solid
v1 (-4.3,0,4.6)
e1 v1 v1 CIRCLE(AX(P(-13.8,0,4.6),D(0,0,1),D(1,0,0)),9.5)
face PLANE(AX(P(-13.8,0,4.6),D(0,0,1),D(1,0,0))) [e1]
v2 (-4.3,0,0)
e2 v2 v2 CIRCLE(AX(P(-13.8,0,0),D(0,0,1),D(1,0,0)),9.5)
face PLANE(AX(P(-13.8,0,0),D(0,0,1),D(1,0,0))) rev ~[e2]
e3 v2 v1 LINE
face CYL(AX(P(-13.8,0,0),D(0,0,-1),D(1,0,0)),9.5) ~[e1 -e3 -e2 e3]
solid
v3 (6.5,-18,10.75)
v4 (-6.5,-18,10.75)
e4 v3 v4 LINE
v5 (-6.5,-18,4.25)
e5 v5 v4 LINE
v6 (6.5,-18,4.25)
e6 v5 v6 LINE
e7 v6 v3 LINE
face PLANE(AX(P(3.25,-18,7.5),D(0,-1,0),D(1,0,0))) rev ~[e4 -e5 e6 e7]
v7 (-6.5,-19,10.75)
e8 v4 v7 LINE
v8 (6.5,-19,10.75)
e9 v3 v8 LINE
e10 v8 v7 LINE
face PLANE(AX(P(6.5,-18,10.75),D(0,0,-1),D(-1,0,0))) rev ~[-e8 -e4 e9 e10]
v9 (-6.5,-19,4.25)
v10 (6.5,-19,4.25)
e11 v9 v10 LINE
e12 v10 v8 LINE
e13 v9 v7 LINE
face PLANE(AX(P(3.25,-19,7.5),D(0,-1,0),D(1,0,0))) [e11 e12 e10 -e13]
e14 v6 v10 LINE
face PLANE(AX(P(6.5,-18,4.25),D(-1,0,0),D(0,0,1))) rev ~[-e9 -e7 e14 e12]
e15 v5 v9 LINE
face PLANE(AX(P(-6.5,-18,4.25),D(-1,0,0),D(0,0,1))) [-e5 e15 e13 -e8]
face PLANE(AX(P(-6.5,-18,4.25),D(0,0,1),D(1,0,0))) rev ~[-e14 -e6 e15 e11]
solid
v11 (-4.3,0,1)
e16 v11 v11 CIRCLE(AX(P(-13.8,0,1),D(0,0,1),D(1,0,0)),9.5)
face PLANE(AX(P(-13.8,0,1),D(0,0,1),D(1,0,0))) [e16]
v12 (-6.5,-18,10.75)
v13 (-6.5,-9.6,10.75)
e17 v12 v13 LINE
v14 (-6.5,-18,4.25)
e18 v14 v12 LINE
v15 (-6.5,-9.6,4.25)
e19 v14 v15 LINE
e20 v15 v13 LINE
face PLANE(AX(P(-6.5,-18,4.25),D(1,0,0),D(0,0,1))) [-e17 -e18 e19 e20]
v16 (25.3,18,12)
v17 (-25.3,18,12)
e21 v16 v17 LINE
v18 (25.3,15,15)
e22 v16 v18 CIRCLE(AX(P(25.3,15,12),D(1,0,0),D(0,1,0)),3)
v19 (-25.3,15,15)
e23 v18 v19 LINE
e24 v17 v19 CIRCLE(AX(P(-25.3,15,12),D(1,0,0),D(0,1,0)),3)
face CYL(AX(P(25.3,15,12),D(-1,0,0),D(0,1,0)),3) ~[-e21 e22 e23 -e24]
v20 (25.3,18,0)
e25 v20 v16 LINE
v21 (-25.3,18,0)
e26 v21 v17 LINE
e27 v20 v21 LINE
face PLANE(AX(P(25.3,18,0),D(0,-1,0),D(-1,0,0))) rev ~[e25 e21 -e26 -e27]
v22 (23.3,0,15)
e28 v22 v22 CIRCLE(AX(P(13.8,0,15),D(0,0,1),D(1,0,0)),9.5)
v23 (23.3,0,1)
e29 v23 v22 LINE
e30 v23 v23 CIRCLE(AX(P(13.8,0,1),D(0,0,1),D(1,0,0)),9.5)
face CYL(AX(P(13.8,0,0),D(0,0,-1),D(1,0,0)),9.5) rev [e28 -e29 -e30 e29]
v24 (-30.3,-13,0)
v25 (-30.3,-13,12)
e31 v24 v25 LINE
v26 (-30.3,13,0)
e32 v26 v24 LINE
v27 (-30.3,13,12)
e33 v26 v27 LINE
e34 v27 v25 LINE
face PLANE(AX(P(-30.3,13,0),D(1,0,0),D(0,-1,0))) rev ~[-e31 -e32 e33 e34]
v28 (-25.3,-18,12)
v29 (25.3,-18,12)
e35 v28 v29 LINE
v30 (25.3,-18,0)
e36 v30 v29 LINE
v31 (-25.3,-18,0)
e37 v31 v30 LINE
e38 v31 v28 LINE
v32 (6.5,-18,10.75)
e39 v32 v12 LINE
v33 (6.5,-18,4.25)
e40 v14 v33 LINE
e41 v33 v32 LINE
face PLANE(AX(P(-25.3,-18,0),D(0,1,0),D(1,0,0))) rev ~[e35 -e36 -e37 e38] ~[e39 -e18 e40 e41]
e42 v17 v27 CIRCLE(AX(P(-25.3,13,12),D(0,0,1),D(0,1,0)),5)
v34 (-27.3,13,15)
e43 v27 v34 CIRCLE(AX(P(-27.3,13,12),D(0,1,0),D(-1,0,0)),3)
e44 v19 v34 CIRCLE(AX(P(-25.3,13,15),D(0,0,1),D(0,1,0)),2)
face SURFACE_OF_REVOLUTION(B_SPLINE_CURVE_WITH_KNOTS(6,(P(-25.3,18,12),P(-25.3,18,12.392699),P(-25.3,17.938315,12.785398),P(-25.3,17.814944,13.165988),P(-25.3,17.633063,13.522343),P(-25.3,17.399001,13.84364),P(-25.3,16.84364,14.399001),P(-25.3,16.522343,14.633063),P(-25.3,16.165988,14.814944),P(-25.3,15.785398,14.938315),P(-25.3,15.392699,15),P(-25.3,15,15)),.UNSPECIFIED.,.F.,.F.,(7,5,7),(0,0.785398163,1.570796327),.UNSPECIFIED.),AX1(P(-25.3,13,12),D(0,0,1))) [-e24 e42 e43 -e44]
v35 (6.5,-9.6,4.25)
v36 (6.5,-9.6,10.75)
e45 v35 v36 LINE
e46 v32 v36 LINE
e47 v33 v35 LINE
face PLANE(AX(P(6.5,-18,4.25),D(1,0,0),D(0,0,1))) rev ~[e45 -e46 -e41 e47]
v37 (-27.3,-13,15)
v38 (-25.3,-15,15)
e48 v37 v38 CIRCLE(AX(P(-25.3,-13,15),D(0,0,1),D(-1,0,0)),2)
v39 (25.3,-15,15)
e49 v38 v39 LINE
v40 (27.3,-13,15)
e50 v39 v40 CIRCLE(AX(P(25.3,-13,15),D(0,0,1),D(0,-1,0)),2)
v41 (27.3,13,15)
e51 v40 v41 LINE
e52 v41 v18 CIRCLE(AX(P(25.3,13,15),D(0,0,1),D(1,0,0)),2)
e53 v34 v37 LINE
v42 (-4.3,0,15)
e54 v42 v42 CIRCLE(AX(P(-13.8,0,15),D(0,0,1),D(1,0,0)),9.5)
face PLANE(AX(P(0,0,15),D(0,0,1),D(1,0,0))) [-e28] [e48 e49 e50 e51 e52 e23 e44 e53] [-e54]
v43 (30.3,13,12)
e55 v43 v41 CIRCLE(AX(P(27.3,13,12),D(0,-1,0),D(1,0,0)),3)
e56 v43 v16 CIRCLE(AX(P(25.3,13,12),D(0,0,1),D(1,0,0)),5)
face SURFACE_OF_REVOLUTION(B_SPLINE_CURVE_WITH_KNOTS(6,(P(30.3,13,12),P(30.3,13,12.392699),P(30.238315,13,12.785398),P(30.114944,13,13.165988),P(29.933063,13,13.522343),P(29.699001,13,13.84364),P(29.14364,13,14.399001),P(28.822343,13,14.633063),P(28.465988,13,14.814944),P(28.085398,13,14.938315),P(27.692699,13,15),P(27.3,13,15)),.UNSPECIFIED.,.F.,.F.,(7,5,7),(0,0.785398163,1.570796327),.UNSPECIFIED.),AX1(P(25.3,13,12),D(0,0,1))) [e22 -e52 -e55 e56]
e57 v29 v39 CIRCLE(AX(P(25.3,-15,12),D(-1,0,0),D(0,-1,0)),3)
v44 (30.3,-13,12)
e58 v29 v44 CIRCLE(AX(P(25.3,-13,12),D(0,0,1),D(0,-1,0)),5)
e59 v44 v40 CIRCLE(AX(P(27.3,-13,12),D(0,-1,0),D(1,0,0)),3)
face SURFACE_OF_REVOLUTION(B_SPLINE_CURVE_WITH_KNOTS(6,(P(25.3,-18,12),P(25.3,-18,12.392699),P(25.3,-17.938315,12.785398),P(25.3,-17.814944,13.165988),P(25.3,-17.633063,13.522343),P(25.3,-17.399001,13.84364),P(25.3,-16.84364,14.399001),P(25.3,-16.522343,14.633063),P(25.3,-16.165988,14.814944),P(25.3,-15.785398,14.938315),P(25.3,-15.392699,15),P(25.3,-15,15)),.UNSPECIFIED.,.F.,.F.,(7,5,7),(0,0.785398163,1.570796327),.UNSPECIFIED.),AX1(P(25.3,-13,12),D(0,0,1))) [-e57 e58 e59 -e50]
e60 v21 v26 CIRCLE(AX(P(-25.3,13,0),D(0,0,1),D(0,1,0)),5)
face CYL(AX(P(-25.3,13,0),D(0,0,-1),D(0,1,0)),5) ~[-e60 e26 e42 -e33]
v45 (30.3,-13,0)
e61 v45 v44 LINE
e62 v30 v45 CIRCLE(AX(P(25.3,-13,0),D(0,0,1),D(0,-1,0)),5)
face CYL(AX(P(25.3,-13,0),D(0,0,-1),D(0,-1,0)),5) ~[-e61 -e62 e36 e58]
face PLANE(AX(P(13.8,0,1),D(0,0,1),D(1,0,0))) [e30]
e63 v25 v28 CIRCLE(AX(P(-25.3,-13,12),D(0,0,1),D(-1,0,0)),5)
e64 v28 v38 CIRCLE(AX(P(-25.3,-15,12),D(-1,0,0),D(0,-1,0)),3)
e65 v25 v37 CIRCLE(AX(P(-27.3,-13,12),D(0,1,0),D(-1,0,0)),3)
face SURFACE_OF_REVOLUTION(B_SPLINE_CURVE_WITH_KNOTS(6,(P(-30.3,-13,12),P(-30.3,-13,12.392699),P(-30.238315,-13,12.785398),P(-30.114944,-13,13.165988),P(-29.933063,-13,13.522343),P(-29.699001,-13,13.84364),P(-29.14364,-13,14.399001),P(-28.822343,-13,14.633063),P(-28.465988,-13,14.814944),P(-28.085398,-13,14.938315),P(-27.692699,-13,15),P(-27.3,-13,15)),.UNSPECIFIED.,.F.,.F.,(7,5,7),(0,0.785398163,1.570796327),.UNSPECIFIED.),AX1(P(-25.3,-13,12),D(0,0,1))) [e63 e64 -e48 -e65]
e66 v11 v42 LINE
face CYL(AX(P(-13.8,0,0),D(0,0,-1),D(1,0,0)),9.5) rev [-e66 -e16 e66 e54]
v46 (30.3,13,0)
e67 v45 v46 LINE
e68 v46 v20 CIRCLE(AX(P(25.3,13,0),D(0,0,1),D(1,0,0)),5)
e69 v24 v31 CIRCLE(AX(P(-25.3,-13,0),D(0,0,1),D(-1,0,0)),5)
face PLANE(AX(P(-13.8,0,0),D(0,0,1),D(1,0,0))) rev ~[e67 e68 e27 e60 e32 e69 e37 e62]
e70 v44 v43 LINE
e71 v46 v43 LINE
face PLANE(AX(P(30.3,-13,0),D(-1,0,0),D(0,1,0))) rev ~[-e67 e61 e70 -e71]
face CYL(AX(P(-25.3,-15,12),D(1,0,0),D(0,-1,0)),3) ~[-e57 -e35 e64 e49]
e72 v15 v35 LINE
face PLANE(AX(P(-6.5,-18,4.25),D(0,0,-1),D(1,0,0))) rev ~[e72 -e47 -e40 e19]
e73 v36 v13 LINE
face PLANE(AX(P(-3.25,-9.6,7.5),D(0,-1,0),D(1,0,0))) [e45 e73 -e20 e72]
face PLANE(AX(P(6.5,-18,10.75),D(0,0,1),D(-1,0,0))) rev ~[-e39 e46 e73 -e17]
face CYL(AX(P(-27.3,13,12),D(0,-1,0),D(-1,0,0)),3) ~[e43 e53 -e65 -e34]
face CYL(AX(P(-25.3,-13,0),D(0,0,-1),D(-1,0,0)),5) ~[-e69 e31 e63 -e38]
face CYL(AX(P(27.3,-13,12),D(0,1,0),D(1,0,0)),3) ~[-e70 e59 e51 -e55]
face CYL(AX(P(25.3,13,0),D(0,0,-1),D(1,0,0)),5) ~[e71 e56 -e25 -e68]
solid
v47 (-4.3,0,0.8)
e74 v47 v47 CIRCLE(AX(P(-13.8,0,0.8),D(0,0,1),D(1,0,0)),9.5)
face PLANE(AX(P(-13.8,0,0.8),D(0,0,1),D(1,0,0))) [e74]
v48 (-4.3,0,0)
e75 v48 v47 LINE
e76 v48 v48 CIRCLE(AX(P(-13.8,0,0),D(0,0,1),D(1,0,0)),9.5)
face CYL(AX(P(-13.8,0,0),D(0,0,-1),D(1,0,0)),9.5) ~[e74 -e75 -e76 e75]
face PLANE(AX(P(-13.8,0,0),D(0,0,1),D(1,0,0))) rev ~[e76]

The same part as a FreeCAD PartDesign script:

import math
import FreeCAD as App
import Part
import Sketcher
from FreeCAD import Vector


def edges_at(feature, points):
    """Names of the edges that pass closest to the given points."""
    edges = feature.Shape.Edges
    near = lambda p: min(range(len(edges)), key=lambda i: edges[i].distToShape(Part.Vertex(*p))[0])
    return sorted({f"Edge{near(p) + 1}" for p in points})


def add_polygon(sketch, points):
    """Adds a closed chain of lines whose ends are joined by coincident constraints."""
    first, n = sketch.GeometryCount, len(points)
    for a, b in zip(points, points[1:] + points[:1]):
        sketch.addGeometry(Part.LineSegment(App.Vector(*a, 0), App.Vector(*b, 0)), False)
    for i in range(n):
        sketch.addConstraint(Sketcher.Constraint("Coincident", first + i, 2, first + (i + 1) % n, 1))

doc = App.newDocument("Part")
params = doc.addObject("Spreadsheet::Sheet", "Params")
for row, (alias, value) in enumerate([
    ("sketch1_diameter", "19 mm"),
    ("sketch1_radius", "5 mm"),
    ("sketch1_height", "26 mm"),
    ("sketch1_width", "50.6 mm"),
    ("pad1_length", "15 mm"),
    ("sketch2_diameter", "19 mm"),
    ("pad2_length", "1 mm"),
    ("sketch3_width", "13 mm"),
    ("sketch3_height", "6.5 mm"),
    ("pocket1_length", "8.4 mm"),
    ("fillet_radius", "3 mm"),
    ("sketch4_diameter", "19 mm"),
    ("pad3_length", "0.8 mm"),
    ("sketch5_width", "13 mm"),
    ("sketch5_height", "6.5 mm"),
    ("pad4_length", "1 mm"),
    ("sketch6_diameter", "19 mm"),
    ("pad5_length", "4.6 mm"),
], start=1):
    params.set(f"A{row}", alias)
    params.set(f"B{row}", "=" + value)
    params.setAlias(f"B{row}", alias)

body = doc.addObject("PartDesign::Body", "Body")

# Sketch on XY plane
sketch1 = body.newObject("Sketcher::SketchObject", "Sketch")
sketch1.AttachmentSupport = (doc.getObject("XY_Plane"), [""])
sketch1.MapMode = "FlatFace"
sketch1.addGeometry([
    Part.LineSegment(Vector(25, 18, 0), Vector(-25, 18, 0)),  # 0
    Part.ArcOfCircle(Part.Circle(Vector(-25, 13, 0), Vector(0, 0, 1), 5), math.radians(90), math.radians(180)),  # 1
    Part.LineSegment(Vector(-30, 13, 0), Vector(-30, -13, 0)),  # 2
    Part.ArcOfCircle(Part.Circle(Vector(-25, -13, 0), Vector(0, 0, 1), 5), math.radians(180), math.radians(270)),  # 3
    Part.LineSegment(Vector(-25, -18, 0), Vector(25, -18, 0)),  # 4
    Part.ArcOfCircle(Part.Circle(Vector(25, -13, 0), Vector(0, 0, 1), 5), math.radians(-90), math.radians(0)),  # 5
    Part.LineSegment(Vector(30, -13, 0), Vector(30, 13, 0)),  # 6
    Part.ArcOfCircle(Part.Circle(Vector(25, 13, 0), Vector(0, 0, 1), 5), math.radians(0), math.radians(90)),  # 7
    Part.Circle(Vector(-14, 0, 0), Vector(0, 0, 1), 10),  # 8
    Part.Circle(Vector(14, 0, 0), Vector(0, 0, 1), 10),  # 9
], False)
sketch1.addConstraint([
    Sketcher.Constraint("Tangent", 0, 2, 1, 1),
    Sketcher.Constraint("Tangent", 1, 2, 2, 1),
    Sketcher.Constraint("Tangent", 2, 2, 3, 1),
    Sketcher.Constraint("Tangent", 3, 2, 4, 1),
    Sketcher.Constraint("Tangent", 4, 2, 5, 1),
    Sketcher.Constraint("Tangent", 5, 2, 6, 1),
    Sketcher.Constraint("Tangent", 6, 2, 7, 1),
    Sketcher.Constraint("Tangent", 7, 2, 0, 1),
    Sketcher.Constraint("Horizontal", 0),
    Sketcher.Constraint("Vertical", 2),
    Sketcher.Constraint("Horizontal", 4),
    Sketcher.Constraint("Vertical", 6),
    Sketcher.Constraint("Equal", 1, 3),
    Sketcher.Constraint("Equal", 3, 5),
    Sketcher.Constraint("Equal", 5, 7),
    Sketcher.Constraint("Equal", 8, 9),
    Sketcher.Constraint("Symmetric", 1, 3, 5, 3, -1, 1),
    Sketcher.Constraint("Symmetric", 8, 3, 9, 3, -1, 1),
    Sketcher.Constraint("PointOnObject", 8, 3, -1),
    Sketcher.Constraint("Diameter", 8, 19.0),
    Sketcher.Constraint("Radius", 1, 5.0),
    Sketcher.Constraint("DistanceY", 2, 2, 2, 1, 26.0),
    Sketcher.Constraint("DistanceX", 0, 2, 0, 1, 50.6),
    Sketcher.Constraint("DistanceX", 8, 3, -1, 1, 13.8),
])
sketch1.setExpression("Constraints[19]", "Params.sketch1_diameter")
sketch1.setExpression("Constraints[20]", "Params.sketch1_radius")
sketch1.setExpression("Constraints[21]", "Params.sketch1_height")
sketch1.setExpression("Constraints[22]", "Params.sketch1_width")
pad1 = body.newObject("PartDesign::Pad", "Pad")
pad1.Profile = sketch1
pad1.setExpression("Length", "Params.pad1_length")

# Sketch on XY plane
sketch2 = body.newObject("Sketcher::SketchObject", "Sketch001")
sketch2.AttachmentSupport = (doc.getObject("XY_Plane"), [""])
sketch2.MapMode = "FlatFace"
sketch2.addGeometry([
    Part.Circle(Vector(-14, 0, 0), Vector(0, 0, 1), 10),
    Part.Circle(Vector(14, 0, 0), Vector(0, 0, 1), 10),
], False)
sketch2.addConstraint([
    Sketcher.Constraint("Equal", 0, 1),
    Sketcher.Constraint("Symmetric", 0, 3, 1, 3, -1, 1),
    Sketcher.Constraint("PointOnObject", 0, 3, -1),
    Sketcher.Constraint("Diameter", 0, 19.0),
    Sketcher.Constraint("DistanceX", 0, 3, -1, 1, 13.8),
])
sketch2.setExpression("Constraints[3]", "Params.sketch2_diameter")
pad2 = body.newObject("PartDesign::Pad", "Pad001")
pad2.Profile = sketch2
pad2.setExpression("Length", "Params.pad2_length")

# Sketch on XZ plane
sketch3 = body.newObject("Sketcher::SketchObject", "Sketch002")
sketch3.AttachmentSupport = (doc.getObject("XZ_Plane"), [""])
sketch3.MapMode = "FlatFace"
sketch3.AttachmentOffset = App.Placement(Vector(0, 0, 18), App.Rotation())
add_polygon(sketch3, [(-6, 11), (-6, 4), (6, 4), (6, 11)])  # lines 0-3
sketch3.addConstraint([
    Sketcher.Constraint("Vertical", 0),
    Sketcher.Constraint("Horizontal", 1),
    Sketcher.Constraint("Vertical", 2),
    Sketcher.Constraint("Horizontal", 3),
    Sketcher.Constraint("DistanceX", 1, 1, 1, 2, 13.0),
    Sketcher.Constraint("DistanceY", 0, 2, 0, 1, 6.5),
    Sketcher.Constraint("DistanceX", 0, 2, -1, 1, 6.5),
    Sketcher.Constraint("DistanceY", -1, 1, 0, 2, 4.25),
])
sketch3.setExpression("Constraints[8]", "Params.sketch3_width")
sketch3.setExpression("Constraints[9]", "Params.sketch3_height")
pocket1 = body.newObject("PartDesign::Pocket", "Pocket")
pocket1.Profile = sketch3
pocket1.setExpression("Length", "Params.pocket1_length")
doc.recompute()

fillet = body.newObject("PartDesign::Fillet", "Fillet")
fillet.Base = (pocket1, edges_at(pocket1, [(0, -18, 15)]))
fillet.setExpression("Radius", "Params.fillet_radius")
body2 = doc.addObject("PartDesign::Body", "Body001")

# Sketch on XY plane
sketch4 = body2.newObject("Sketcher::SketchObject", "Sketch003")
sketch4.AttachmentSupport = (doc.getObject("XY_Plane001"), [""])
sketch4.MapMode = "FlatFace"
sketch4.addGeometry(Part.Circle(Vector(-14, 0, 0), Vector(0, 0, 1), 10), False)
sketch4.addConstraint([
    Sketcher.Constraint("PointOnObject", 0, 3, -1),
    Sketcher.Constraint("Diameter", 0, 19.0),
    Sketcher.Constraint("DistanceX", 0, 3, -1, 1, 13.8),
])
sketch4.setExpression("Constraints[1]", "Params.sketch4_diameter")
pad3 = body2.newObject("PartDesign::Pad", "Pad002")
pad3.Profile = sketch4
pad3.setExpression("Length", "Params.pad3_length")
body3 = doc.addObject("PartDesign::Body", "Body002")

# Sketch on XZ plane
sketch5 = body3.newObject("Sketcher::SketchObject", "Sketch004")
sketch5.AttachmentSupport = (doc.getObject("XZ_Plane002"), [""])
sketch5.MapMode = "FlatFace"
sketch5.AttachmentOffset = App.Placement(Vector(0, 0, 18), App.Rotation())
add_polygon(sketch5, [(6, 4), (6, 11), (-6, 11), (-6, 4)])  # lines 0-3
sketch5.addConstraint([
    Sketcher.Constraint("Vertical", 0),
    Sketcher.Constraint("Horizontal", 1),
    Sketcher.Constraint("Vertical", 2),
    Sketcher.Constraint("Horizontal", 3),
    Sketcher.Constraint("DistanceX", 1, 2, 1, 1, 13.0),
    Sketcher.Constraint("DistanceY", 0, 1, 0, 2, 6.5),
    Sketcher.Constraint("DistanceX", -1, 1, 0, 2, 6.5),
    Sketcher.Constraint("DistanceY", -1, 1, 0, 2, 10.75),
])
sketch5.setExpression("Constraints[8]", "Params.sketch5_width")
sketch5.setExpression("Constraints[9]", "Params.sketch5_height")
pad4 = body3.newObject("PartDesign::Pad", "Pad003")
pad4.Profile = sketch5
pad4.setExpression("Length", "Params.pad4_length")
body4 = doc.addObject("PartDesign::Body", "Body003")

# Sketch on XY plane
sketch6 = body4.newObject("Sketcher::SketchObject", "Sketch005")
sketch6.AttachmentSupport = (doc.getObject("XY_Plane003"), [""])
sketch6.MapMode = "FlatFace"
sketch6.addGeometry(Part.Circle(Vector(-14, 0, 0), Vector(0, 0, 1), 10), False)
sketch6.addConstraint([
    Sketcher.Constraint("PointOnObject", 0, 3, -1),
    Sketcher.Constraint("Diameter", 0, 19.0),
    Sketcher.Constraint("DistanceX", 0, 3, -1, 1, 13.8),
])
sketch6.setExpression("Constraints[1]", "Params.sketch6_diameter")
pad5 = body4.newObject("PartDesign::Pad", "Pad004")
pad5.Profile = sketch6
pad5.setExpression("Length", "Params.pad5_length")

doc.recompute()
